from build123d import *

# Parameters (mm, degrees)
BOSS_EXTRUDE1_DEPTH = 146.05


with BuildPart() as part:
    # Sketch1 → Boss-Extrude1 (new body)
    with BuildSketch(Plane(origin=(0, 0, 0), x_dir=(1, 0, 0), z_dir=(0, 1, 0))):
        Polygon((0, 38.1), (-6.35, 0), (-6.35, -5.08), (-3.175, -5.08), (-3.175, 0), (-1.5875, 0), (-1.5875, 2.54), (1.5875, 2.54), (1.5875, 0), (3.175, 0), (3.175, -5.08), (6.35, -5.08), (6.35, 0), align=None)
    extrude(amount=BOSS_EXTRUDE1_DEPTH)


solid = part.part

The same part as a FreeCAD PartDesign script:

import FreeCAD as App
import Part
import Sketcher

V = App.Vector
Q = App.Units.Quantity


def add_polygon(sketch, points):
    """Adds a closed chain of lines whose ends are joined by coincident constraints."""
    first, n = sketch.GeometryCount, len(points)
    for a, b in zip(points, points[1:] + points[:1]):
        sketch.addGeometry(Part.LineSegment(App.Vector(*a, 0), App.Vector(*b, 0)), False)
    for i in range(n):
        sketch.addConstraint(Sketcher.Constraint("Coincident", first + i, 2, first + (i + 1) % n, 1))

doc = App.newDocument("Part")
body = doc.addObject("PartDesign::Body", "Body")

# Sketch on XZ plane
sketch1 = body.newObject("Sketcher::SketchObject", "Sketch")
sketch1.AttachmentSupport = (doc.getObject("XZ_Plane"), [""])
sketch1.MapMode = "FlatFace"
add_polygon(sketch1, [(0, -38.1), (-6.3, 0), (-6.3, 5.1), (-3.2, 5.1), (-3.2, 0), (-1.6, 0), (-1.6, -2.5), (1.6, -2.5), (1.6, 0), (3.2, 0), (3.2, 5.1), (6.3, 5.1), (6.3, 0)])  # lines 0-12
sketch1.addConstraint(Sketcher.Constraint("Vertical", 1))
sketch1.addConstraint(Sketcher.Constraint("Horizontal", 2))
sketch1.addConstraint(Sketcher.Constraint("Vertical", 3))
sketch1.addConstraint(Sketcher.Constraint("Horizontal", 4))
sketch1.addConstraint(Sketcher.Constraint("Vertical", 5))
sketch1.addConstraint(Sketcher.Constraint("Horizontal", 6))
sketch1.addConstraint(Sketcher.Constraint("Vertical", 7))
sketch1.addConstraint(Sketcher.Constraint("Horizontal", 8))
sketch1.addConstraint(Sketcher.Constraint("Vertical", 9))
sketch1.addConstraint(Sketcher.Constraint("Horizontal", 10))
sketch1.addConstraint(Sketcher.Constraint("Vertical", 11))
sketch1.addConstraint(Sketcher.Constraint("Symmetric", 4, 2, 7, 2, -1, 1))
sketch1.addConstraint(Sketcher.Constraint("Symmetric", 0, 2, 11, 2, -1, 1))
sketch1.addConstraint(Sketcher.Constraint("Symmetric", 3, 2, 8, 2, -2))
sketch1.addConstraint(Sketcher.Constraint("PointOnObject", 0, 2, -1))
sketch1.addConstraint(Sketcher.Constraint("PointOnObject", 12, 2, -2))
sketch1.addConstraint(Sketcher.Constraint("Horizontal", 2, 2, 9, 2))
sketch1.addConstraint(Sketcher.Constraint("Equal", 2, 6))
sketch1.addConstraint(Sketcher.Constraint("DistanceY", 1, 1, 1, 2, Q("0.2 in")))
sketch1.addConstraint(Sketcher.Constraint("DistanceY", 5, 2, 5, 1, Q("0.1 in")))
sketch1.addConstraint(Sketcher.Constraint("DistanceY", 12, 2, -1, 1, Q("1.5 in")))
sketch1.addConstraint(Sketcher.Constraint("DistanceX", 2, 1, 2, 2, Q("0.125 in")))
sketch1.addConstraint(Sketcher.Constraint("DistanceX", 4, 1, 4, 2, Q("0.0625 in")))
pad1 = body.newObject("PartDesign::Pad", "Pad")
pad1.Profile = sketch1
pad1.Length = Q("5.75 in")
pad1.Reversed = True

doc.recompute()
